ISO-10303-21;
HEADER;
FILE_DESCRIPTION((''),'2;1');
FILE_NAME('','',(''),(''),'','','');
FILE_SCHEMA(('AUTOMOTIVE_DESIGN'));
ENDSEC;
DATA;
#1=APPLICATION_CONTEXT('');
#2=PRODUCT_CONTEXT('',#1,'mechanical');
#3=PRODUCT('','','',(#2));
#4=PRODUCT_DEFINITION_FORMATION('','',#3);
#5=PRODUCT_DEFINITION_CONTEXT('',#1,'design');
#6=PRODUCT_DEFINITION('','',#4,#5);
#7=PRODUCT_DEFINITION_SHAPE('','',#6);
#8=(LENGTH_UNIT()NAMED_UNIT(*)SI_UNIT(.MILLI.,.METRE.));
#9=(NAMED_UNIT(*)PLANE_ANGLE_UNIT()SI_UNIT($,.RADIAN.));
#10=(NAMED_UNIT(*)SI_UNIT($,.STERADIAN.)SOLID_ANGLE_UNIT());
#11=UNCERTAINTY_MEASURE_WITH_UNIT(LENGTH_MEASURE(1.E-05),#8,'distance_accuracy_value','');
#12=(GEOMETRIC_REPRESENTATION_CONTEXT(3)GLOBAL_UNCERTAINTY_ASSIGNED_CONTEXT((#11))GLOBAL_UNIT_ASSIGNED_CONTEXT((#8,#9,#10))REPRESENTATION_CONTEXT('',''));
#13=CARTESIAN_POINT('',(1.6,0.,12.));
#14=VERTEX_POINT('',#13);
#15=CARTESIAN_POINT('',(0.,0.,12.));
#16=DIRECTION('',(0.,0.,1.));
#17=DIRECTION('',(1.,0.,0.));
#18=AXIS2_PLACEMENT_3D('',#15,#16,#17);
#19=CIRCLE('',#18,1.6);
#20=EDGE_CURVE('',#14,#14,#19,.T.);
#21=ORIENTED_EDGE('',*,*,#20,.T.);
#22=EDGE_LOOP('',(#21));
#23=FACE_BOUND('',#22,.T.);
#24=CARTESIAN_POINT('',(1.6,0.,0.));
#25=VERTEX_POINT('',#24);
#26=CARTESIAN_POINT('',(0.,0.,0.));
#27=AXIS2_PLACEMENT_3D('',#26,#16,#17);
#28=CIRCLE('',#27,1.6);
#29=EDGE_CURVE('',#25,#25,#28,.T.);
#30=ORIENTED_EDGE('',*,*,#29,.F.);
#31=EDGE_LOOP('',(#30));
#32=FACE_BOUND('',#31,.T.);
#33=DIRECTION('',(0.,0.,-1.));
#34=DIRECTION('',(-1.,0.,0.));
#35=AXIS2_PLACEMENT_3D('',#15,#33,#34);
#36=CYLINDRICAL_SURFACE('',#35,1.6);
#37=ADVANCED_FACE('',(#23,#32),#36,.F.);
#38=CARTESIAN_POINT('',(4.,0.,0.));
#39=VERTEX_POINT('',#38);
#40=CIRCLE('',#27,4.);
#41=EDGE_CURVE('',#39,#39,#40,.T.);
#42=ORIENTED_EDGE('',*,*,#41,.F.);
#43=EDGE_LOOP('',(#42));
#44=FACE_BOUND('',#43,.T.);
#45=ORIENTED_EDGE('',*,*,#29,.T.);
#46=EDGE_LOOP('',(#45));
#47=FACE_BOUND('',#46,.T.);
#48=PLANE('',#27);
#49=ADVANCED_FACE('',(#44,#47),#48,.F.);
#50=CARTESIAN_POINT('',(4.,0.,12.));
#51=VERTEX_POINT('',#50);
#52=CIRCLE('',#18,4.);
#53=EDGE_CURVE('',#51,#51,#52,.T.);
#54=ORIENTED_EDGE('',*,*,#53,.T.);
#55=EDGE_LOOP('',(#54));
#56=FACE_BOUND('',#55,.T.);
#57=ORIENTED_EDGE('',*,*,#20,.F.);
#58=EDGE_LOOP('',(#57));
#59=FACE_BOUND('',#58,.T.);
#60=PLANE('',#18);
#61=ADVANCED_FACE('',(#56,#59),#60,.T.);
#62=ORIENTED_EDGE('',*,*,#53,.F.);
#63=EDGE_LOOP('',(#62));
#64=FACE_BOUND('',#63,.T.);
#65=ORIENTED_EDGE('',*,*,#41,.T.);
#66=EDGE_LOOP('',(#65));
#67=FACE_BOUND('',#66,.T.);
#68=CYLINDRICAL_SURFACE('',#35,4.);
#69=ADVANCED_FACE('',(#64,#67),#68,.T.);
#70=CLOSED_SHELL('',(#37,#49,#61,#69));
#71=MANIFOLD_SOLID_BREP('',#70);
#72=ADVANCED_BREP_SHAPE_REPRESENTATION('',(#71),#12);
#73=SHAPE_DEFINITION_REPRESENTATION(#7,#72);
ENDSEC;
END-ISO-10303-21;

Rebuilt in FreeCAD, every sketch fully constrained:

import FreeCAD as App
import Part
import Sketcher
from FreeCAD import Vector

doc = App.newDocument("Part")
body = doc.addObject("PartDesign::Body", "Body")

sketch1 = body.newObject("Sketcher::SketchObject", "Sketch")
sketch1.AttachmentSupport = (doc.getObject("XY_Plane"), [""])
sketch1.MapMode = "FlatFace"
sketch1.addGeometry([
    Part.Circle(Vector(0, 0, 0), Vector(0, 0, 1), 4),
    Part.Circle(Vector(0, 0, 0), Vector(0, 0, 1), 1.6),
], False)
sketch1.addConstraint([
    Sketcher.Constraint("Coincident", 0, 3, -1, 1),
    Sketcher.Constraint("Coincident", 1, 3, -1, 1),
    Sketcher.Constraint("Diameter", 0, 8.0),
    Sketcher.Constraint("Diameter", 1, 3.2),
])
pad1 = body.newObject("PartDesign::Pad", "Pad")
pad1.Profile = sketch1
pad1.Length = 12

doc.recompute()
